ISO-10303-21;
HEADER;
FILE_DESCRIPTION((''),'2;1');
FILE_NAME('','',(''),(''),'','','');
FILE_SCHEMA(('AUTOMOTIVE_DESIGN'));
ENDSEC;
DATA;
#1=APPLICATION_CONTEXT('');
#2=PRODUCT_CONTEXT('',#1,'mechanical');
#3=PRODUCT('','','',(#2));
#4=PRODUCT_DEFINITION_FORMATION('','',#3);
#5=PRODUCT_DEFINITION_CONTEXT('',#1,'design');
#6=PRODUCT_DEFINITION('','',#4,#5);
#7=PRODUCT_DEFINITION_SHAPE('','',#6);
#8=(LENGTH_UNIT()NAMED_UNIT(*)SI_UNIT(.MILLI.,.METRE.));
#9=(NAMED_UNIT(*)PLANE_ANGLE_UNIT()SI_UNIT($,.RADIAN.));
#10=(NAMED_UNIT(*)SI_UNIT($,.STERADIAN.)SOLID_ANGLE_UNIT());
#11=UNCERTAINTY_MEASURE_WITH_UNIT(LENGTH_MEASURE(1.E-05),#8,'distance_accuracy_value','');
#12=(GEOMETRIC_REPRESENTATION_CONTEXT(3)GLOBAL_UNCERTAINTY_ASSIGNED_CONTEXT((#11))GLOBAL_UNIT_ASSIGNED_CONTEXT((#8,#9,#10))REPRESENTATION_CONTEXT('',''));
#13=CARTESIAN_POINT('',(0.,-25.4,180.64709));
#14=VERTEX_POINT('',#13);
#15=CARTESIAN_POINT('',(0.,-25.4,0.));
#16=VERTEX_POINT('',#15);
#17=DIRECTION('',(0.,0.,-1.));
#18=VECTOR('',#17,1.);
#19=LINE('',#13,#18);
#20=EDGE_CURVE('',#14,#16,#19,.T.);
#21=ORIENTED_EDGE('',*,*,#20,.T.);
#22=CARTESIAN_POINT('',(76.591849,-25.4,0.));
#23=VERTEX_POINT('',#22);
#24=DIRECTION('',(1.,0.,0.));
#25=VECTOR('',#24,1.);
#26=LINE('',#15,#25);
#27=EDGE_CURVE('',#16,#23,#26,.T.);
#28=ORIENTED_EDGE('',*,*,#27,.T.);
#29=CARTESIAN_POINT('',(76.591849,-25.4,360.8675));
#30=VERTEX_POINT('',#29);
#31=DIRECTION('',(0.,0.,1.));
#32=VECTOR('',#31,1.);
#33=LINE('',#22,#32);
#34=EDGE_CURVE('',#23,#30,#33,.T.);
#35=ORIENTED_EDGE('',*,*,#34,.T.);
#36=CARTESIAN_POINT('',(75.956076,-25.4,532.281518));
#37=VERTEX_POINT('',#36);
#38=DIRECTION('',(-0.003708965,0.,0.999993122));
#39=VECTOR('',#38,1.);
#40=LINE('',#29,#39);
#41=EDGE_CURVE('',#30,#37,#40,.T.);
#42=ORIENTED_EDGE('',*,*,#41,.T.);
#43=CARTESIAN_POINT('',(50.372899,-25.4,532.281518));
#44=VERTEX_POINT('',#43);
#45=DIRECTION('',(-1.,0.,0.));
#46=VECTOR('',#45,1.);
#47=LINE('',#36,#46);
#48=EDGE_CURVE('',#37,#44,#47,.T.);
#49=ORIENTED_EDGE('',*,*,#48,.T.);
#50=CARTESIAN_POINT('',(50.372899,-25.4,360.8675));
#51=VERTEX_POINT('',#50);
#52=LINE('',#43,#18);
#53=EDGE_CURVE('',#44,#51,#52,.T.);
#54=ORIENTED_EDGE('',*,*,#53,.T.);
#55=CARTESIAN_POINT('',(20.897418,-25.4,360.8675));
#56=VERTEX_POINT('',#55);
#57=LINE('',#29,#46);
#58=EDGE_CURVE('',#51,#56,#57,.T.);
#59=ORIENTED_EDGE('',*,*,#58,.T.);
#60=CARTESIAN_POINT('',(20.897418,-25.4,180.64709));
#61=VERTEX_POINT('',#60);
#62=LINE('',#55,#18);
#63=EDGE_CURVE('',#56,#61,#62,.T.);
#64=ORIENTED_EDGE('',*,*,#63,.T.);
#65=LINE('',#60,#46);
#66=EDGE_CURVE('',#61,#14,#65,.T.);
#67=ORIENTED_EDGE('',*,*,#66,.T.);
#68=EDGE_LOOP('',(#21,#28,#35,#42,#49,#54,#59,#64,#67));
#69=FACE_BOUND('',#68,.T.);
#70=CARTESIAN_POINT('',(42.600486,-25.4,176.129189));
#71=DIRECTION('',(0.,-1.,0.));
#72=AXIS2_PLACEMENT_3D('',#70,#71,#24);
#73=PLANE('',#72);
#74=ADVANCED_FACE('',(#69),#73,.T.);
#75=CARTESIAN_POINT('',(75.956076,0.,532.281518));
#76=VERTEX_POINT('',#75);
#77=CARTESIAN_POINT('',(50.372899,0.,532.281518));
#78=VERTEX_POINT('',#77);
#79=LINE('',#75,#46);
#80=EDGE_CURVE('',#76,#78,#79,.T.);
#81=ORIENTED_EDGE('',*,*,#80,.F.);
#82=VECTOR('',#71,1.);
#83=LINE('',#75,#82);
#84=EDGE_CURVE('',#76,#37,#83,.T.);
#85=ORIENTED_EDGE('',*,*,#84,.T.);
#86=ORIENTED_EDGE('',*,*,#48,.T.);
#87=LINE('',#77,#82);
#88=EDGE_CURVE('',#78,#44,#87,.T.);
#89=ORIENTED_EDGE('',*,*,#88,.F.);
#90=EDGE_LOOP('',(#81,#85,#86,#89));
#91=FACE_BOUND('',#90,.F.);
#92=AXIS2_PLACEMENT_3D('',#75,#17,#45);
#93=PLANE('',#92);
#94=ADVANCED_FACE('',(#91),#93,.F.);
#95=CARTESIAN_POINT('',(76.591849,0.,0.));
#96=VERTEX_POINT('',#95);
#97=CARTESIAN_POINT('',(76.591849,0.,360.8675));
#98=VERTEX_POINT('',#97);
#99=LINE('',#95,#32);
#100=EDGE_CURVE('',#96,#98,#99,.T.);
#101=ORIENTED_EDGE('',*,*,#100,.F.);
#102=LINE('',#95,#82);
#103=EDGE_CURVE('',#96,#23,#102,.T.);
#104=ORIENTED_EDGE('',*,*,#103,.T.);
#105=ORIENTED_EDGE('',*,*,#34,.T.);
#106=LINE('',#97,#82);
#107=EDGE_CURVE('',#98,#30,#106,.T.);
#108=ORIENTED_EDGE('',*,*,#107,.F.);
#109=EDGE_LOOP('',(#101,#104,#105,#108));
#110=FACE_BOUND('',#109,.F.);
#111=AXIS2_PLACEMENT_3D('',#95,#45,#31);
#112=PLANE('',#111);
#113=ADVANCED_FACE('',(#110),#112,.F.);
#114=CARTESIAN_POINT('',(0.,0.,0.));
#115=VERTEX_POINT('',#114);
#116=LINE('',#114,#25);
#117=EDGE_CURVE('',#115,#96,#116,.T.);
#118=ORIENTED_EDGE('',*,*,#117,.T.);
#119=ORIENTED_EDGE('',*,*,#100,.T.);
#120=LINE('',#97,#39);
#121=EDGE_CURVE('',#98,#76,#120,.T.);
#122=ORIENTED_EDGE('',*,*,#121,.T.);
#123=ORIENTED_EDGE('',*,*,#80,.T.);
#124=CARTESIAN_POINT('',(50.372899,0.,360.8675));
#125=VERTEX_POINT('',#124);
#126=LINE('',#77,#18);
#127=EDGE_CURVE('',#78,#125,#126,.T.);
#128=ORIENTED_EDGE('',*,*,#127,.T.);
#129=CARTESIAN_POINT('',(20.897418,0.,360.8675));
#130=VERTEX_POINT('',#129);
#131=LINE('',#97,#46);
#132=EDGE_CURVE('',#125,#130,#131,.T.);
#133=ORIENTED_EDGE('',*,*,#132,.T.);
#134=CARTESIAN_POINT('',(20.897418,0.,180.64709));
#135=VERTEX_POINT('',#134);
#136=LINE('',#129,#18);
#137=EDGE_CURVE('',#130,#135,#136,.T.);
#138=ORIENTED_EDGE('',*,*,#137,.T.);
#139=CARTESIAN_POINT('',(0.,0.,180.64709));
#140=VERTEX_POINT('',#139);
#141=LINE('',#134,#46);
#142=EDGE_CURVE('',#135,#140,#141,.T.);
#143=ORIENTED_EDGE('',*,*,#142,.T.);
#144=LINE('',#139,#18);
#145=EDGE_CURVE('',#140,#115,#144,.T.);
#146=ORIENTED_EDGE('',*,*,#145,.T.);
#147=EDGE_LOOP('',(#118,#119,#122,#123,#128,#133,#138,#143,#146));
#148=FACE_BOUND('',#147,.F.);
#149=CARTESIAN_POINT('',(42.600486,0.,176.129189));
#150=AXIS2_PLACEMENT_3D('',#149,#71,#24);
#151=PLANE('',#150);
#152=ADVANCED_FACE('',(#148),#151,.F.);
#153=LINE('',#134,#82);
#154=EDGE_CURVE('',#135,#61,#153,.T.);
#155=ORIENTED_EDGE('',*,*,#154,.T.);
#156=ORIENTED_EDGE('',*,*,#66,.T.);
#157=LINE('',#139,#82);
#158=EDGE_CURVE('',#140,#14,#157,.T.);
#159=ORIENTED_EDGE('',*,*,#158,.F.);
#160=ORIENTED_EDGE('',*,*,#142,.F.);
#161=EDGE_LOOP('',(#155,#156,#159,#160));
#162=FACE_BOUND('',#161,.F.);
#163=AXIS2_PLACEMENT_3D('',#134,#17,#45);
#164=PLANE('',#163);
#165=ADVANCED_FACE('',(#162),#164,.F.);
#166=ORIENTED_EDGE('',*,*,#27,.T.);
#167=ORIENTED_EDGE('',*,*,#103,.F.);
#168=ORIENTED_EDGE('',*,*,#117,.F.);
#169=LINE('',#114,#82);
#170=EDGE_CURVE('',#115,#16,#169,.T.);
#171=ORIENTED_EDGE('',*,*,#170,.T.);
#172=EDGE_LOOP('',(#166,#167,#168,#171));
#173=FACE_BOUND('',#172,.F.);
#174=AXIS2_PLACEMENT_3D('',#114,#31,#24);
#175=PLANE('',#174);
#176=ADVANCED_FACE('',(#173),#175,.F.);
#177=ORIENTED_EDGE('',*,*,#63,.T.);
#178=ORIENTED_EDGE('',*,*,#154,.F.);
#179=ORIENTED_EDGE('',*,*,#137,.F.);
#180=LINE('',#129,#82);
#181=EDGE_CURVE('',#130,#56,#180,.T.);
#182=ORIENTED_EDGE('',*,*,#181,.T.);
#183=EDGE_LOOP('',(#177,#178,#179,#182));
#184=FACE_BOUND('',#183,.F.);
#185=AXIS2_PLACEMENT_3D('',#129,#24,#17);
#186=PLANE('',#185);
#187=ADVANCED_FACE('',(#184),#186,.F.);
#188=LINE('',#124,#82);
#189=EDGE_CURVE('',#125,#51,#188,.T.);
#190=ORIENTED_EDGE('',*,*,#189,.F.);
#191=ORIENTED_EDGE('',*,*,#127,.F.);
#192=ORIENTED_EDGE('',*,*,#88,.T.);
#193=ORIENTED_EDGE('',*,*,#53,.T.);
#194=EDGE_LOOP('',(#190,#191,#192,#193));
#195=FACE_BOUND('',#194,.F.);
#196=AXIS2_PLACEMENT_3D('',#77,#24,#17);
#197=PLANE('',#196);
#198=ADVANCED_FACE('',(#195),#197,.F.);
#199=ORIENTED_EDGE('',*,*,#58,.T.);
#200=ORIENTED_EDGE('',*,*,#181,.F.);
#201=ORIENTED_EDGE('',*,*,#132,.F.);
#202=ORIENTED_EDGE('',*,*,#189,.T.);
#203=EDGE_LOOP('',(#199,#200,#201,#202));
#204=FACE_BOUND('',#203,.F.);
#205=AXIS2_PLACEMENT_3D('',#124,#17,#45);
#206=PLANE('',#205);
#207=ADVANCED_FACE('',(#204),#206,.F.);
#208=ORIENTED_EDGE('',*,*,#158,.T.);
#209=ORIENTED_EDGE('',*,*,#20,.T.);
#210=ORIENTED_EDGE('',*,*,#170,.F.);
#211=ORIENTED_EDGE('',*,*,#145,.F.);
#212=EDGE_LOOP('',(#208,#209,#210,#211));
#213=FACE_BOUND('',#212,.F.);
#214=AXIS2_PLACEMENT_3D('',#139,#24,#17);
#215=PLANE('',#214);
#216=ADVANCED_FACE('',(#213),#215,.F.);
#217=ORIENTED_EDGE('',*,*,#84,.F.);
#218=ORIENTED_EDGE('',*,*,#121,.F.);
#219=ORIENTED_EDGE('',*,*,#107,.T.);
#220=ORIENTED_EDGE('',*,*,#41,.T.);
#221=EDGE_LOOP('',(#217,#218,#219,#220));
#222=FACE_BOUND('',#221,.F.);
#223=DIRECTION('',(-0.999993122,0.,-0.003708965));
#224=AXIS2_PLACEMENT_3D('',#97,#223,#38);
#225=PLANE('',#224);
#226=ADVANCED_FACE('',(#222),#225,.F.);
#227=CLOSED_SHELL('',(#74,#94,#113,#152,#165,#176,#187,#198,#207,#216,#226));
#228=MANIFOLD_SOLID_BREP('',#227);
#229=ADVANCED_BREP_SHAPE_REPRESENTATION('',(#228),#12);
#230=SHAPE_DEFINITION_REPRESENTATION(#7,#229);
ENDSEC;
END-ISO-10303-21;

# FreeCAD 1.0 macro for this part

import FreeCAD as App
import Part
import Sketcher

V = App.Vector
Q = App.Units.Quantity

doc = App.newDocument("Part")
body = doc.addObject("PartDesign::Body", "Body")

# Sketch on XZ plane
sketch1 = body.newObject("Sketcher::SketchObject", "Sketch")
sketch1.AttachmentSupport = (doc.getObject("XZ_Plane"), [""])
sketch1.MapMode = "FlatFace"
sketch1.addGeometry([
    Part.LineSegment(V(0, 181, 0), V(0, 0, 0)),  # 0
    Part.LineSegment(V(0, 0, 0), V(77, 0, 0)),  # 1
    Part.LineSegment(V(77, 0, 0), V(77, 361, 0)),  # 2
    Part.LineSegment(V(77, 361, 0), V(76, 532, 0)),  # 3
    Part.LineSegment(V(76, 532, 0), V(50, 532, 0)),  # 4
    Part.LineSegment(V(50, 532, 0), V(50, 361, 0)),  # 5
    Part.LineSegment(V(50, 361, 0), V(21, 361, 0)),  # 6
    Part.LineSegment(V(21, 361, 0), V(21, 181, 0)),  # 7
    Part.LineSegment(V(21, 181, 0), V(0, 181, 0)),  # 8
], False)
sketch1.addConstraint([
    Sketcher.Constraint("Coincident", 0, 2, 1, 1),
    Sketcher.Constraint("Coincident", 1, 2, 2, 1),
    Sketcher.Constraint("Coincident", 2, 2, 3, 1),
    Sketcher.Constraint("Coincident", 3, 2, 4, 1),
    Sketcher.Constraint("Coincident", 4, 2, 5, 1),
    Sketcher.Constraint("Coincident", 5, 2, 6, 1),
    Sketcher.Constraint("Coincident", 6, 2, 7, 1),
    Sketcher.Constraint("Coincident", 7, 2, 8, 1),
    Sketcher.Constraint("Coincident", 8, 2, 0, 1),
    Sketcher.Constraint("Vertical", 0),
    Sketcher.Constraint("Horizontal", 1),
    Sketcher.Constraint("Vertical", 2),
    Sketcher.Constraint("Horizontal", 4),
    Sketcher.Constraint("Vertical", 5),
    Sketcher.Constraint("Horizontal", 6),
    Sketcher.Constraint("Vertical", 7),
    Sketcher.Constraint("Horizontal", 8),
    Sketcher.Constraint("Coincident", 0, 2, -1, 1),
    Sketcher.Constraint("Horizontal", 2, 2, 5, 2),
    Sketcher.Constraint("DistanceY", 2, 1, 2, 2, 360.8675),
    Sketcher.Constraint("DistanceX", 1, 1, 1, 2, 76.591849),
    Sketcher.Constraint("DistanceX", 6, 2, 6, 1, 29.475481),
    Sketcher.Constraint("DistanceY", 0, 2, 0, 1, 180.64709),
    Sketcher.Constraint("DistanceY", 5, 2, 5, 1, 171.414018),
    Sketcher.Constraint("DistanceX", -1, 1, 4, 2, 50.372899),
    Sketcher.Constraint("DistanceX", 4, 2, 4, 1, 25.583177),
])
pad1 = body.newObject("PartDesign::Pad", "Pad")
pad1.Profile = sketch1
pad1.Length = Q("1 in")

doc.recompute()
